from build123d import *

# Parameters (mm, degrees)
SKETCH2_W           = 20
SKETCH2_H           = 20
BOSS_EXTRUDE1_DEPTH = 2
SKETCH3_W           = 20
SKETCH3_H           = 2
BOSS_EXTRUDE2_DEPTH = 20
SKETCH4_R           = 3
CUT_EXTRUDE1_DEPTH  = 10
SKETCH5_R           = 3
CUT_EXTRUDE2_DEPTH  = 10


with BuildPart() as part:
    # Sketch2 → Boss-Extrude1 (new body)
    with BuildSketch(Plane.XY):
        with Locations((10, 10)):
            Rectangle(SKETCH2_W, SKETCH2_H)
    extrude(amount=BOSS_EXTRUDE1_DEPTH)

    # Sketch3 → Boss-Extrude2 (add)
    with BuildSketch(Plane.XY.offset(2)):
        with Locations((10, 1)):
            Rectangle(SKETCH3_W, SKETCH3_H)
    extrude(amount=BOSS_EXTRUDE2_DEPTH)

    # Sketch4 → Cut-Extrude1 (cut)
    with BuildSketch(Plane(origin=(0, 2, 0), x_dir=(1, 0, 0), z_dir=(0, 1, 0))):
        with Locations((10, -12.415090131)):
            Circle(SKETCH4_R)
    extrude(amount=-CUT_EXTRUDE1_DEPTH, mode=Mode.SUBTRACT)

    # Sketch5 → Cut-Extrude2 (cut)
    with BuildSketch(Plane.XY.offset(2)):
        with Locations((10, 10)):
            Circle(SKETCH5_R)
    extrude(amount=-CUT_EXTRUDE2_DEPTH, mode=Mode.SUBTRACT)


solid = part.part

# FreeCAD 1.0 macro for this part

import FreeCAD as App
import Part
import Sketcher
Q = App.Units.Quantity

doc = App.newDocument("Part")
body = doc.addObject("PartDesign::Body", "Body")

# Sketch on XY plane
sketch1 = body.newObject("Sketcher::SketchObject", "Sketch")
sketch1.AttachmentSupport = (doc.getObject("XY_Plane"), [""])
sketch1.MapMode = "FlatFace"
sketch1.addGeometry([
    Part.LineSegment(App.Vector(0, 20, 0), App.Vector(0, 0, 0)),
    Part.LineSegment(App.Vector(0, 0, 0), App.Vector(20, 0, 0)),
    Part.LineSegment(App.Vector(20, 0, 0), App.Vector(20, 20, 0)),
    Part.LineSegment(App.Vector(20, 20, 0), App.Vector(0, 20, 0)),
], False)
sketch1.addConstraint([
    Sketcher.Constraint("Coincident", 0, 2, 1, 1),
    Sketcher.Constraint("Coincident", 1, 2, 2, 1),
    Sketcher.Constraint("Coincident", 2, 2, 3, 1),
    Sketcher.Constraint("Coincident", 3, 2, 0, 1),
    Sketcher.Constraint("Vertical", 0),
    Sketcher.Constraint("Horizontal", 1),
    Sketcher.Constraint("Vertical", 2),
    Sketcher.Constraint("Horizontal", 3),
    Sketcher.Constraint("Coincident", 0, 2, -1, 1),
    Sketcher.Constraint("Equal", 3, 0),
    Sketcher.Constraint("DistanceX", 1, 1, 1, 2, Q("20 mm")),
])
pad1 = body.newObject("PartDesign::Pad", "Pad")
pad1.Profile = sketch1
pad1.Length = 2

# Sketch on XY plane
sketch2 = body.newObject("Sketcher::SketchObject", "Sketch001")
sketch2.AttachmentSupport = (doc.getObject("XY_Plane"), [""])
sketch2.MapMode = "FlatFace"
sketch2.AttachmentOffset = App.Placement(App.Vector(0, 0, 2), App.Rotation())
sketch2.addGeometry([
    Part.LineSegment(App.Vector(0, 2, 0), App.Vector(0, 0, 0)),
    Part.LineSegment(App.Vector(0, 0, 0), App.Vector(20, 0, 0)),
    Part.LineSegment(App.Vector(20, 0, 0), App.Vector(20, 2, 0)),
    Part.LineSegment(App.Vector(20, 2, 0), App.Vector(0, 2, 0)),
], False)
sketch2.addConstraint([
    Sketcher.Constraint("Coincident", 0, 2, 1, 1),
    Sketcher.Constraint("Coincident", 1, 2, 2, 1),
    Sketcher.Constraint("Coincident", 2, 2, 3, 1),
    Sketcher.Constraint("Coincident", 3, 2, 0, 1),
    Sketcher.Constraint("Vertical", 0),
    Sketcher.Constraint("Horizontal", 1),
    Sketcher.Constraint("Vertical", 2),
    Sketcher.Constraint("Horizontal", 3),
    Sketcher.Constraint("Coincident", 0, 2, -1, 1),
    Sketcher.Constraint("DistanceX", 1, 1, 1, 2, Q("20 mm")),
    Sketcher.Constraint("DistanceY", 0, 2, 0, 1, Q("2 mm")),
])
pad2 = body.newObject("PartDesign::Pad", "Pad001")
pad2.Profile = sketch2
pad2.Length = 20

# Sketch on XZ plane
sketch3 = body.newObject("Sketcher::SketchObject", "Sketch002")
sketch3.AttachmentSupport = (doc.getObject("XZ_Plane"), [""])
sketch3.MapMode = "FlatFace"
sketch3.AttachmentOffset = App.Placement(App.Vector(0, 0, -2), App.Rotation())
sketch3.addGeometry(Part.Circle(App.Vector(10, 12.41509, 0), App.Vector(0, 0, 1), 3), False)
sketch3.addConstraint([
    Sketcher.Constraint("Diameter", 0, Q("6 mm")),
    Sketcher.Constraint("DistanceX", -1, 1, 0, 3, Q("10 mm")),
    Sketcher.Constraint("DistanceY", -1, 1, 0, 3, Q("12.41509 mm")),
])
pocket1 = body.newObject("PartDesign::Pocket", "Pocket")
pocket1.Profile = sketch3
pocket1.Length = 10
pocket1.Reversed = True

# Sketch on XY plane
sketch4 = body.newObject("Sketcher::SketchObject", "Sketch003")
sketch4.AttachmentSupport = (doc.getObject("XY_Plane"), [""])
sketch4.MapMode = "FlatFace"
sketch4.AttachmentOffset = App.Placement(App.Vector(0, 0, 2), App.Rotation())
sketch4.addGeometry(Part.Circle(App.Vector(10, 10, 0), App.Vector(0, 0, 1), 3), False)
sketch4.addConstraint([
    Sketcher.Constraint("Diameter", 0, Q("6 mm")),
    Sketcher.Constraint("DistanceX", -1, 1, 0, 3, Q("10 mm")),
    Sketcher.Constraint("DistanceY", -1, 1, 0, 3, Q("10 mm")),
])
pocket2 = body.newObject("PartDesign::Pocket", "Pocket001")
pocket2.Profile = sketch4
pocket2.Length = 10

doc.recompute()
